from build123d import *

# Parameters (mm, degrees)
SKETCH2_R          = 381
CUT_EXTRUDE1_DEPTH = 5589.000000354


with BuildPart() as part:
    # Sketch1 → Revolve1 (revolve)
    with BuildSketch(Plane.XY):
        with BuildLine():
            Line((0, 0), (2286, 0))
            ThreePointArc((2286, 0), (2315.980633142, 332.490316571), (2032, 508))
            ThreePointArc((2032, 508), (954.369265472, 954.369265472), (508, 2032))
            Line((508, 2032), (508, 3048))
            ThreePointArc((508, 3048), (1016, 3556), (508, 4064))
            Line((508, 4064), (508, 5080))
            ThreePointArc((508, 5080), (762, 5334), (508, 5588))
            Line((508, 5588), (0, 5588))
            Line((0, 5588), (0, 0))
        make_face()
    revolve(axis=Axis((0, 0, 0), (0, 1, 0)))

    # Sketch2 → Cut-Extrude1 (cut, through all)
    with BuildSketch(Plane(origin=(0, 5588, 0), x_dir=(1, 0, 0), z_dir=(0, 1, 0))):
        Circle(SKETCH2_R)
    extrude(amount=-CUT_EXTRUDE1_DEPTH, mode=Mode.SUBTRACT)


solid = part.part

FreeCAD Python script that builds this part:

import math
import FreeCAD as App
import Part
import Sketcher
Q = App.Units.Quantity

doc = App.newDocument("Part")
body = doc.addObject("PartDesign::Body", "Body")

# Sketch on XY plane
sketch1 = doc.addObject("Sketcher::SketchObject", "Sketch")
body.addObject(sketch1)
sketch1.AttachmentSupport = (doc.XY_Plane, [""])
sketch1.MapMode = "FlatFace"
sketch1.addGeometry([
    Part.LineSegment(App.Vector(0, 0, 0), App.Vector(2286, 0, 0)),  # 0
    Part.ArcOfCircle(Part.Circle(App.Vector(2032, 190.5, 0), App.Vector(0, 0, 1), 317.5), math.radians(-36.869898), math.radians(90)),  # 1
    Part.ArcOfCircle(Part.Circle(App.Vector(2032, 2032, 0), App.Vector(0, 0, 1), 1524), math.radians(-180), math.radians(-90)),  # 2
    Part.LineSegment(App.Vector(508, 2032, 0), App.Vector(508, 3048, 0)),  # 3
    Part.ArcOfCircle(Part.Circle(App.Vector(508, 3556, 0), App.Vector(0, 0, 1), 508), math.radians(-90), math.radians(90)),  # 4
    Part.LineSegment(App.Vector(508, 4064, 0), App.Vector(508, 5080, 0)),  # 5
    Part.ArcOfCircle(Part.Circle(App.Vector(508, 5334, 0), App.Vector(0, 0, 1), 254), math.radians(-90), math.radians(90)),  # 6
    Part.LineSegment(App.Vector(508, 5588, 0), App.Vector(0, 5588, 0)),  # 7
    Part.LineSegment(App.Vector(0, 5588, 0), App.Vector(0, 0, 0)),  # 8
], False)
sketch1.addConstraint([
    Sketcher.Constraint("Coincident", 0, 2, 1, 1),
    Sketcher.Constraint("Tangent", 1, 2, 2, 2),
    Sketcher.Constraint("Coincident", 2, 1, 3, 1),
    Sketcher.Constraint("Coincident", 3, 2, 4, 1),
    Sketcher.Constraint("Coincident", 4, 2, 5, 1),
    Sketcher.Constraint("Coincident", 5, 2, 6, 1),
    Sketcher.Constraint("Tangent", 6, 2, 7, 1),
    Sketcher.Constraint("Coincident", 7, 2, 8, 1),
    Sketcher.Constraint("Coincident", 8, 2, 0, 1),
    Sketcher.Constraint("Horizontal", 0),
    Sketcher.Constraint("Vertical", 3),
    Sketcher.Constraint("Vertical", 5),
    Sketcher.Constraint("Horizontal", 7),
    Sketcher.Constraint("Vertical", 8),
    Sketcher.Constraint("Coincident", 8, 2, -1, 1),
    Sketcher.Constraint("Vertical", 1, 3, 2, 3),
    Sketcher.Constraint("Vertical", 4, 3, 6, 3),
    Sketcher.Constraint("Vertical", 6, 3, 2, 1),
    Sketcher.Constraint("Vertical", 5, 2, 6, 2),
    Sketcher.Constraint("Equal", 3, 5),
    Sketcher.Constraint("Radius", 2, Q("60 in")),
    Sketcher.Constraint("Radius", 4, Q("20 in")),
    Sketcher.Constraint("Radius", 6, Q("10 in")),
    Sketcher.Constraint("Radius", 1, Q("12.5 in")),
    Sketcher.Constraint("DistanceX", 0, 1, 0, 2, Q("90 in")),
    Sketcher.Constraint("DistanceX", 7, 2, 7, 1, Q("20 in")),
    Sketcher.Constraint("DistanceY", 3, 1, 3, 2, Q("40 in")),
    Sketcher.Constraint("DistanceY", 8, 2, 8, 1, Q("220 in")),
])
revolution = doc.addObject("PartDesign::Revolution", "Revolution")
body.addObject(revolution)
revolution.Profile = sketch1
revolution.ReferenceAxis = (sketch1, ["V_Axis"])
revolution.Angle = 360

# Sketch on XZ plane
sketch2 = doc.addObject("Sketcher::SketchObject", "Sketch001")
body.addObject(sketch2)
sketch2.AttachmentSupport = (doc.XZ_Plane, [""])
sketch2.MapMode = "FlatFace"
sketch2.AttachmentOffset = App.Placement(App.Vector(0, 0, -220 * 25.4), App.Rotation())
sketch2.addGeometry(Part.Circle(App.Vector(0, 0, 0), App.Vector(0, 0, 1), 381), False)
sketch2.addConstraint([
    Sketcher.Constraint("Coincident", 0, 3, -1, 1),
    Sketcher.Constraint("Diameter", 0, Q("30 in")),
])
pocket1 = doc.addObject("PartDesign::Pocket", "Pocket")
body.addObject(pocket1)
pocket1.Profile = sketch2
pocket1.Type = "ThroughAll"
pocket1.Reversed = True

doc.recompute()
